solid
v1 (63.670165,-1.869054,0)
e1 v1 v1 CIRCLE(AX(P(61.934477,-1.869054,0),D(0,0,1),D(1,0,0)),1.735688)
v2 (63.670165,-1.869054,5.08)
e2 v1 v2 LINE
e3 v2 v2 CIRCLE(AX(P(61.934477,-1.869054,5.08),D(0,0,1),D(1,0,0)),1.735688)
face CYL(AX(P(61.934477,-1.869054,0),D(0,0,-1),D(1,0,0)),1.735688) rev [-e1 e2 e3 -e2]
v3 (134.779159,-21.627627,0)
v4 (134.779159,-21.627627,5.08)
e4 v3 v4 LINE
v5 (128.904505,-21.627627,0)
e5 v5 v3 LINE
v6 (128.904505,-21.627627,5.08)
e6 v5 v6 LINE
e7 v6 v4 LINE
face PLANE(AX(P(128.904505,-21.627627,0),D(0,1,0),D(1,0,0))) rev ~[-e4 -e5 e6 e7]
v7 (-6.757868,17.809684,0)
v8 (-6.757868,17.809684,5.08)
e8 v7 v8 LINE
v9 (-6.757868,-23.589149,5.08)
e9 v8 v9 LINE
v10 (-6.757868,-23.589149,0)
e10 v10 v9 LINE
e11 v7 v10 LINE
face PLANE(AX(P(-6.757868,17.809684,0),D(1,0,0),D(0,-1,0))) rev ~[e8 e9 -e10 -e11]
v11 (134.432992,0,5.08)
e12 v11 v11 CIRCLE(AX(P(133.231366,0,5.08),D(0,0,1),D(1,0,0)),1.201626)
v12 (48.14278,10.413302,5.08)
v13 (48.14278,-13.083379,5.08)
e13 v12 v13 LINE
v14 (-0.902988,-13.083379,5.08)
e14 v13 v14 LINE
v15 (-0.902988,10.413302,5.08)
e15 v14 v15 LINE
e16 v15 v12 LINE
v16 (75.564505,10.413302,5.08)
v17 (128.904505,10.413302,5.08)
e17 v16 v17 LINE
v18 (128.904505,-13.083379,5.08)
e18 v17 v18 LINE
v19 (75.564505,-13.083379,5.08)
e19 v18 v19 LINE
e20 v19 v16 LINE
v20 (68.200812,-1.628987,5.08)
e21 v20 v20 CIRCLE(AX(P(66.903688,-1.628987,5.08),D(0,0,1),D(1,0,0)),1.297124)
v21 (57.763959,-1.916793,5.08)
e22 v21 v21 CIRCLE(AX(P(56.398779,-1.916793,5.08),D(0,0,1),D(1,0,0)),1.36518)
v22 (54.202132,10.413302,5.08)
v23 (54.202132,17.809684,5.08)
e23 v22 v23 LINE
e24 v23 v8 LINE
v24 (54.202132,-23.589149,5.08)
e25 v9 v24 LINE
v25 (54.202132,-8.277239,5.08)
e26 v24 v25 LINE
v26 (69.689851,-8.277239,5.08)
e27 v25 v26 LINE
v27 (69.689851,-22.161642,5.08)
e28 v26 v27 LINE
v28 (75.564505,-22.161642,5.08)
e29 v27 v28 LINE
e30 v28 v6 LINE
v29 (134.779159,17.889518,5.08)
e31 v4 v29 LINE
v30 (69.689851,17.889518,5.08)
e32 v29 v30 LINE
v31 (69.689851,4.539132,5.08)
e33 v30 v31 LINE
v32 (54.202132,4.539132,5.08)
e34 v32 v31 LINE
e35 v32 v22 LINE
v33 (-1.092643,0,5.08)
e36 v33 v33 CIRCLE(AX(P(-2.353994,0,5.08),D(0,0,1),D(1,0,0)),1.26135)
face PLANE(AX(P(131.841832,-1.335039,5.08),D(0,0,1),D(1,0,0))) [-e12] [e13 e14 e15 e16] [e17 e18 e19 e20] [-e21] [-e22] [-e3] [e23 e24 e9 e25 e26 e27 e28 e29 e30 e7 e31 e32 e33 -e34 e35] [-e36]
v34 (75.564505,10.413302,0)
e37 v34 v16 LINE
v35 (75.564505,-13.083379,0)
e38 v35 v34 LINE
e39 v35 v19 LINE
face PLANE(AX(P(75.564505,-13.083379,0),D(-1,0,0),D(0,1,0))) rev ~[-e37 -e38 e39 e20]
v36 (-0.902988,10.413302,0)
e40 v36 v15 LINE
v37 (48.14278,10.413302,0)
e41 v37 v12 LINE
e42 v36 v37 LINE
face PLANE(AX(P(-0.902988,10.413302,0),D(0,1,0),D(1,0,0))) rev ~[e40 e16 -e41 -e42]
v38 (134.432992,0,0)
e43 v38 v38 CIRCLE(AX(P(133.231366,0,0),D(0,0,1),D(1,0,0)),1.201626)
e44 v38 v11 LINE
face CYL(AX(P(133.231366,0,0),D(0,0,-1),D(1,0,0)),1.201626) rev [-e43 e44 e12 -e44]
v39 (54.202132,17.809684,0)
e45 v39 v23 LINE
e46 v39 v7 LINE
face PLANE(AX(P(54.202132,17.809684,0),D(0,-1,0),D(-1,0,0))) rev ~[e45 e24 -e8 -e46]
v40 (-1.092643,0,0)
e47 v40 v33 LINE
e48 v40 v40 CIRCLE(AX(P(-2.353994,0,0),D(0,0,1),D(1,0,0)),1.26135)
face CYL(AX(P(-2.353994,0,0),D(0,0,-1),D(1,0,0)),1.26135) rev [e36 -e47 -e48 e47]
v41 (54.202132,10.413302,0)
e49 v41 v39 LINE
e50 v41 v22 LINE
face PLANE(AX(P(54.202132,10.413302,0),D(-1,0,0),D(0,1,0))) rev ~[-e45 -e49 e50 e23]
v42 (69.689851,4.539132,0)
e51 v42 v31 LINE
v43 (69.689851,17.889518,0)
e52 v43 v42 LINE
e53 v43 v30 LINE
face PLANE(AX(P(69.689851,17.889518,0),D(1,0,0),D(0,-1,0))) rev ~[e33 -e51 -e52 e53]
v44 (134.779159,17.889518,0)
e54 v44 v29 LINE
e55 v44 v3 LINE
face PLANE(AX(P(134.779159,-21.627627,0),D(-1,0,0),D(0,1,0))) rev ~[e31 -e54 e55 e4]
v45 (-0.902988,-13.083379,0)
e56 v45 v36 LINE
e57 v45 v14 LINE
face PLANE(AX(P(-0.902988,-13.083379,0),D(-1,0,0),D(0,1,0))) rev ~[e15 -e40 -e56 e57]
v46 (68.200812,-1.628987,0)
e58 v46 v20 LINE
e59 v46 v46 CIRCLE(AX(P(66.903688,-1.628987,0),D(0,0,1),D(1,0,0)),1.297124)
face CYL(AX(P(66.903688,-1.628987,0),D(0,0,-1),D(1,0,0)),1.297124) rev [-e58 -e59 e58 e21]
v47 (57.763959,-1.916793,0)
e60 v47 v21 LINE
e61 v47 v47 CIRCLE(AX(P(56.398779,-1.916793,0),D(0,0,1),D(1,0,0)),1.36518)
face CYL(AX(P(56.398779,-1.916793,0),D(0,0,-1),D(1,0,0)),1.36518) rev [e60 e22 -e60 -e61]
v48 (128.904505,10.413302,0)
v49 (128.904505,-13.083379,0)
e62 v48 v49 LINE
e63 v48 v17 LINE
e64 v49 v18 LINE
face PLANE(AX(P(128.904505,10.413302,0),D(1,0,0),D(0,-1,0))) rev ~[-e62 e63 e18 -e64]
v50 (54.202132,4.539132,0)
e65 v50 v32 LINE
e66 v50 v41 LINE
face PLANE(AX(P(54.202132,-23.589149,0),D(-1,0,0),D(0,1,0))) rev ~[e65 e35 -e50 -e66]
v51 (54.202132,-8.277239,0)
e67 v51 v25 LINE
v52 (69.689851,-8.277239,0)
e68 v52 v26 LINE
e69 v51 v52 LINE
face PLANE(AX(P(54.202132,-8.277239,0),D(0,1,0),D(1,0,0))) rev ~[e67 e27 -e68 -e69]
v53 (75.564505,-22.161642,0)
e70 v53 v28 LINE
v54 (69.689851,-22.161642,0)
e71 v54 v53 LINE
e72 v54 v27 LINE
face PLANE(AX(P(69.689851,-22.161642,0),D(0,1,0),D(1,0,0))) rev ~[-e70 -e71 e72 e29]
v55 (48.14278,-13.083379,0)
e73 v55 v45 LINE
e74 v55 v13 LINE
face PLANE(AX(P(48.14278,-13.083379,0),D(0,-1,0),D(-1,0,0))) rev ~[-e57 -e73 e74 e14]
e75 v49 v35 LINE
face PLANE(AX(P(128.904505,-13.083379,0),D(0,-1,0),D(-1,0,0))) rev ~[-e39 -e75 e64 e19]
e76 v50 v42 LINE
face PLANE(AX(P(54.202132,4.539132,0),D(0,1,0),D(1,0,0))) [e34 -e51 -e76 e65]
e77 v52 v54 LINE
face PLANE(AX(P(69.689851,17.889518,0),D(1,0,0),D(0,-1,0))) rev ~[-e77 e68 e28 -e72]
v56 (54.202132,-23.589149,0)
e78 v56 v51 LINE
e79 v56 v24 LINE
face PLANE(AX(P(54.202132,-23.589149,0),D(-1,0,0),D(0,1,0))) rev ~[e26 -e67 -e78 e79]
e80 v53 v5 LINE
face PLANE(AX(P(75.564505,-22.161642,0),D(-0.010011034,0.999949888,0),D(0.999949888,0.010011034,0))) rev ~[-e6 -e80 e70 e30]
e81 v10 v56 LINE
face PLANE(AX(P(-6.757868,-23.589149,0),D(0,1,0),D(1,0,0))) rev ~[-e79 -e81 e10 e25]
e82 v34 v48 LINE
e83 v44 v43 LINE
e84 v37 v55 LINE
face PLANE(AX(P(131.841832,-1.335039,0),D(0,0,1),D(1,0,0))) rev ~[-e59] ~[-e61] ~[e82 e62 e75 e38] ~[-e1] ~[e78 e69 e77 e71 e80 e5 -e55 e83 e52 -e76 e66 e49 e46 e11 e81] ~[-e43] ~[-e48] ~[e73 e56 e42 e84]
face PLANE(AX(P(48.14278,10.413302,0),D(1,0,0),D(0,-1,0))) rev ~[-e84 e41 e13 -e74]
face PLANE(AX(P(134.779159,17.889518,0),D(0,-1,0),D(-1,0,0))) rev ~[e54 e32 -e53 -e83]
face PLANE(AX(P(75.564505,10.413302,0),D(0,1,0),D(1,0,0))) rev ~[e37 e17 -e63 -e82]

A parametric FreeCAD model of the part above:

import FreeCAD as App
import Part
import Sketcher
from FreeCAD import Vector
Q = App.Units.Quantity


def add_polygon(sketch, points):
    """Adds a closed chain of lines whose ends are joined by coincident constraints."""
    first, n = sketch.GeometryCount, len(points)
    for a, b in zip(points, points[1:] + points[:1]):
        sketch.addGeometry(Part.LineSegment(App.Vector(*a, 0), App.Vector(*b, 0)), False)
    for i in range(n):
        sketch.addConstraint(Sketcher.Constraint("Coincident", first + i, 2, first + (i + 1) % n, 1))

doc = App.newDocument("Part")
body = doc.addObject("PartDesign::Body", "Body")

# Sketch on XY plane
sketch1 = doc.addObject("Sketcher::SketchObject", "Sketch")
body.addObject(sketch1)
sketch1.AttachmentSupport = (doc.XY_Plane, [""])
sketch1.MapMode = "FlatFace"
add_polygon(sketch1, [(76, 10), (135, 10), (135, 18), (70, 18), (70, -22), (76, -22), (129, -22), (129, -13), (76, -13)])  # lines 0-8
sketch1.addConstraint([
    Sketcher.Constraint("Horizontal", 0),
    Sketcher.Constraint("Vertical", 1),
    Sketcher.Constraint("Horizontal", 2),
    Sketcher.Constraint("Vertical", 3),
    Sketcher.Constraint("Horizontal", 4),
    Sketcher.Constraint("Vertical", 6),
    Sketcher.Constraint("Horizontal", 7),
    Sketcher.Constraint("Vertical", 8),
    Sketcher.Constraint("Vertical", 4, 2, 7, 2),
    Sketcher.Constraint("DistanceX", 7, 2, 7, 1, Q("2.1 in")),
    Sketcher.Constraint("DistanceX", 2, 2, 2, 1, Q("65.089309 mm")),
    Sketcher.Constraint("DistanceY", 3, 2, 3, 1, Q("40.05116 mm")),
    Sketcher.Constraint("DistanceY", 8, 1, 8, 2, Q("23.496681 mm")),
    Sketcher.Constraint("DistanceY", -1, 1, 0, 2, Q("10.413302 mm")),
    Sketcher.Constraint("DistanceX", 0, 1, 0, 2, Q("59.214654 mm")),
    Sketcher.Constraint("DistanceY", 1, 1, 1, 2, Q("7.476216 mm")),
    Sketcher.Constraint("DistanceY", 6, 1, 6, 2, Q("8.544248 mm")),
    Sketcher.Constraint("DistanceX", -1, 1, 0, 2, Q("134.779159 mm")),
])
pad1 = doc.addObject("PartDesign::Pad", "Pad")
body.addObject(pad1)
pad1.Profile = sketch1
pad1.Length = Q("0.2 in")

# Sketch on XY plane
sketch2 = doc.addObject("Sketcher::SketchObject", "Sketch001")
body.addObject(sketch2)
sketch2.AttachmentSupport = (doc.XY_Plane, [""])
sketch2.MapMode = "FlatFace"
add_polygon(sketch2, [(54.2, 4.5), (54.2, -8.3), (69.7, -8.3), (69.7, 4.5)])  # lines 0-3
sketch2.addGeometry(Part.Circle(Vector(56.4, -1.9, 0), Vector(0, 0, 1), 1.4), False)  # 4
sketch2.addGeometry(Part.Circle(Vector(61.9, -1.9, 0), Vector(0, 0, 1), 1.7), False)  # 5
sketch2.addGeometry(Part.Circle(Vector(66.9, -1.6, 0), Vector(0, 0, 1), 1.3), False)  # 6
sketch2.addConstraint([
    Sketcher.Constraint("Vertical", 0),
    Sketcher.Constraint("Horizontal", 1),
    Sketcher.Constraint("Vertical", 2),
    Sketcher.Constraint("Horizontal", 3),
    Sketcher.Constraint("Diameter", 4, Q("2.73036 mm")),
    Sketcher.Constraint("Diameter", 6, Q("2.594248 mm")),
    Sketcher.Constraint("Diameter", 5, Q("3.471375 mm")),
    Sketcher.Constraint("DistanceX", 1, 1, 1, 2, Q("15.487718 mm")),
    Sketcher.Constraint("DistanceY", 0, 2, 0, 1, Q("12.816371 mm")),
    Sketcher.Constraint("DistanceX", 4, 3, 5, 3, Q("5.535698 mm")),
    Sketcher.Constraint("DistanceX", -1, 1, 4, 3, Q("56.398779 mm")),
    Sketcher.Constraint("DistanceX", -1, 1, 6, 3, Q("66.903688 mm")),
    Sketcher.Constraint("DistanceY", 0, 2, -1, 1, Q("8.277239 mm")),
    Sketcher.Constraint("DistanceX", -1, 1, 1, 2, Q("69.689851 mm")),
    Sketcher.Constraint("DistanceY", 4, 3, 5, 3, Q("0.047739 mm")),
    Sketcher.Constraint("DistanceY", 0, 2, 6, 3, Q("6.648252 mm")),
    Sketcher.Constraint("DistanceY", 4, 3, -1, 1, Q("1.916793 mm")),
])
pad2 = doc.addObject("PartDesign::Pad", "Pad001")
body.addObject(pad2)
pad2.Profile = sketch2
pad2.Length = Q("0.2 in")

# Sketch on XY plane
sketch3 = doc.addObject("Sketcher::SketchObject", "Sketch002")
body.addObject(sketch3)
sketch3.AttachmentSupport = (doc.XY_Plane, [""])
sketch3.MapMode = "FlatFace"
add_polygon(sketch3, [(134.8, 10.4), (128.9, 10.4), (128.9, -21.6), (134.8, -21.6)])  # lines 0-3
sketch3.addGeometry(Part.Circle(Vector(133.2, 0, 0), Vector(0, 0, 1), 1.2), False)  # 4
add_polygon(sketch3, [(54.2, -23.6), (54.2, 10.4), (54.2, 17.8), (-6.8, 17.8), (-6.8, -23.6)])  # lines 5-9
sketch3.addGeometry(Part.Circle(Vector(-2.4, 0, 0), Vector(0, 0, 1), 1.3), False)  # 10
add_polygon(sketch3, [(-0.9, 10.4), (48.1, 10.4), (48.1, -13.1), (-0.9, -13.1)])  # lines 11-14
sketch3.addConstraint([
    Sketcher.Constraint("Horizontal", 0),
    Sketcher.Constraint("Vertical", 1),
    Sketcher.Constraint("Horizontal", 2),
    Sketcher.Constraint("Vertical", 3),
    Sketcher.Constraint("Vertical", 5),
    Sketcher.Constraint("Vertical", 6),
    Sketcher.Constraint("Horizontal", 7),
    Sketcher.Constraint("Vertical", 8),
    Sketcher.Constraint("Horizontal", 9),
    Sketcher.Constraint("Horizontal", 11),
    Sketcher.Constraint("Vertical", 12),
    Sketcher.Constraint("Horizontal", 13),
    Sketcher.Constraint("Vertical", 14),
    Sketcher.Constraint("PointOnObject", 4, 3, -1),
    Sketcher.Constraint("PointOnObject", 10, 3, -1),
    Sketcher.Constraint("Horizontal", 3, 2, 5, 2),
    Sketcher.Constraint("Horizontal", 5, 2, 11, 2),
    Sketcher.Constraint("DistanceX", 7, 2, 7, 1, Q("2.4 in")),
    Sketcher.Constraint("Diameter", 10, Q("2.522701 mm")),
    Sketcher.Constraint("Diameter", 4, Q("2.403251 mm")),
    Sketcher.Constraint("DistanceY", 1, 2, 1, 1, Q("32.040929 mm")),
    Sketcher.Constraint("DistanceY", 5, 1, 5, 2, Q("34.002451 mm")),
    Sketcher.Constraint("DistanceY", 12, 2, 12, 1, Q("23.496681 mm")),
    Sketcher.Constraint("DistanceY", -1, 1, 0, 2, Q("10.413302 mm")),
    Sketcher.Constraint("DistanceX", 10, 3, 0, 2, Q("131.258499 mm")),
    Sketcher.Constraint("DistanceX", 0, 2, 0, 1, Q("5.874654 mm")),
    Sketcher.Constraint("DistanceX", 11, 1, 11, 2, Q("49.045767 mm")),
    Sketcher.Constraint("DistanceY", 6, 1, 6, 2, Q("7.396383 mm")),
    Sketcher.Constraint("DistanceX", -1, 1, 2, 2, Q("134.779159 mm")),
    Sketcher.Constraint("DistanceX", -1, 1, 11, 2, Q("48.14278 mm")),
    Sketcher.Constraint("DistanceX", 10, 3, 4, 3, Q("135.58536 mm")),
    Sketcher.Constraint("DistanceX", 8, 2, 13, 2, Q("5.85488 mm")),
])
pad3 = doc.addObject("PartDesign::Pad", "Pad002")
body.addObject(pad3)
pad3.Profile = sketch3
pad3.Length = Q("0.2 in")

doc.recompute()
